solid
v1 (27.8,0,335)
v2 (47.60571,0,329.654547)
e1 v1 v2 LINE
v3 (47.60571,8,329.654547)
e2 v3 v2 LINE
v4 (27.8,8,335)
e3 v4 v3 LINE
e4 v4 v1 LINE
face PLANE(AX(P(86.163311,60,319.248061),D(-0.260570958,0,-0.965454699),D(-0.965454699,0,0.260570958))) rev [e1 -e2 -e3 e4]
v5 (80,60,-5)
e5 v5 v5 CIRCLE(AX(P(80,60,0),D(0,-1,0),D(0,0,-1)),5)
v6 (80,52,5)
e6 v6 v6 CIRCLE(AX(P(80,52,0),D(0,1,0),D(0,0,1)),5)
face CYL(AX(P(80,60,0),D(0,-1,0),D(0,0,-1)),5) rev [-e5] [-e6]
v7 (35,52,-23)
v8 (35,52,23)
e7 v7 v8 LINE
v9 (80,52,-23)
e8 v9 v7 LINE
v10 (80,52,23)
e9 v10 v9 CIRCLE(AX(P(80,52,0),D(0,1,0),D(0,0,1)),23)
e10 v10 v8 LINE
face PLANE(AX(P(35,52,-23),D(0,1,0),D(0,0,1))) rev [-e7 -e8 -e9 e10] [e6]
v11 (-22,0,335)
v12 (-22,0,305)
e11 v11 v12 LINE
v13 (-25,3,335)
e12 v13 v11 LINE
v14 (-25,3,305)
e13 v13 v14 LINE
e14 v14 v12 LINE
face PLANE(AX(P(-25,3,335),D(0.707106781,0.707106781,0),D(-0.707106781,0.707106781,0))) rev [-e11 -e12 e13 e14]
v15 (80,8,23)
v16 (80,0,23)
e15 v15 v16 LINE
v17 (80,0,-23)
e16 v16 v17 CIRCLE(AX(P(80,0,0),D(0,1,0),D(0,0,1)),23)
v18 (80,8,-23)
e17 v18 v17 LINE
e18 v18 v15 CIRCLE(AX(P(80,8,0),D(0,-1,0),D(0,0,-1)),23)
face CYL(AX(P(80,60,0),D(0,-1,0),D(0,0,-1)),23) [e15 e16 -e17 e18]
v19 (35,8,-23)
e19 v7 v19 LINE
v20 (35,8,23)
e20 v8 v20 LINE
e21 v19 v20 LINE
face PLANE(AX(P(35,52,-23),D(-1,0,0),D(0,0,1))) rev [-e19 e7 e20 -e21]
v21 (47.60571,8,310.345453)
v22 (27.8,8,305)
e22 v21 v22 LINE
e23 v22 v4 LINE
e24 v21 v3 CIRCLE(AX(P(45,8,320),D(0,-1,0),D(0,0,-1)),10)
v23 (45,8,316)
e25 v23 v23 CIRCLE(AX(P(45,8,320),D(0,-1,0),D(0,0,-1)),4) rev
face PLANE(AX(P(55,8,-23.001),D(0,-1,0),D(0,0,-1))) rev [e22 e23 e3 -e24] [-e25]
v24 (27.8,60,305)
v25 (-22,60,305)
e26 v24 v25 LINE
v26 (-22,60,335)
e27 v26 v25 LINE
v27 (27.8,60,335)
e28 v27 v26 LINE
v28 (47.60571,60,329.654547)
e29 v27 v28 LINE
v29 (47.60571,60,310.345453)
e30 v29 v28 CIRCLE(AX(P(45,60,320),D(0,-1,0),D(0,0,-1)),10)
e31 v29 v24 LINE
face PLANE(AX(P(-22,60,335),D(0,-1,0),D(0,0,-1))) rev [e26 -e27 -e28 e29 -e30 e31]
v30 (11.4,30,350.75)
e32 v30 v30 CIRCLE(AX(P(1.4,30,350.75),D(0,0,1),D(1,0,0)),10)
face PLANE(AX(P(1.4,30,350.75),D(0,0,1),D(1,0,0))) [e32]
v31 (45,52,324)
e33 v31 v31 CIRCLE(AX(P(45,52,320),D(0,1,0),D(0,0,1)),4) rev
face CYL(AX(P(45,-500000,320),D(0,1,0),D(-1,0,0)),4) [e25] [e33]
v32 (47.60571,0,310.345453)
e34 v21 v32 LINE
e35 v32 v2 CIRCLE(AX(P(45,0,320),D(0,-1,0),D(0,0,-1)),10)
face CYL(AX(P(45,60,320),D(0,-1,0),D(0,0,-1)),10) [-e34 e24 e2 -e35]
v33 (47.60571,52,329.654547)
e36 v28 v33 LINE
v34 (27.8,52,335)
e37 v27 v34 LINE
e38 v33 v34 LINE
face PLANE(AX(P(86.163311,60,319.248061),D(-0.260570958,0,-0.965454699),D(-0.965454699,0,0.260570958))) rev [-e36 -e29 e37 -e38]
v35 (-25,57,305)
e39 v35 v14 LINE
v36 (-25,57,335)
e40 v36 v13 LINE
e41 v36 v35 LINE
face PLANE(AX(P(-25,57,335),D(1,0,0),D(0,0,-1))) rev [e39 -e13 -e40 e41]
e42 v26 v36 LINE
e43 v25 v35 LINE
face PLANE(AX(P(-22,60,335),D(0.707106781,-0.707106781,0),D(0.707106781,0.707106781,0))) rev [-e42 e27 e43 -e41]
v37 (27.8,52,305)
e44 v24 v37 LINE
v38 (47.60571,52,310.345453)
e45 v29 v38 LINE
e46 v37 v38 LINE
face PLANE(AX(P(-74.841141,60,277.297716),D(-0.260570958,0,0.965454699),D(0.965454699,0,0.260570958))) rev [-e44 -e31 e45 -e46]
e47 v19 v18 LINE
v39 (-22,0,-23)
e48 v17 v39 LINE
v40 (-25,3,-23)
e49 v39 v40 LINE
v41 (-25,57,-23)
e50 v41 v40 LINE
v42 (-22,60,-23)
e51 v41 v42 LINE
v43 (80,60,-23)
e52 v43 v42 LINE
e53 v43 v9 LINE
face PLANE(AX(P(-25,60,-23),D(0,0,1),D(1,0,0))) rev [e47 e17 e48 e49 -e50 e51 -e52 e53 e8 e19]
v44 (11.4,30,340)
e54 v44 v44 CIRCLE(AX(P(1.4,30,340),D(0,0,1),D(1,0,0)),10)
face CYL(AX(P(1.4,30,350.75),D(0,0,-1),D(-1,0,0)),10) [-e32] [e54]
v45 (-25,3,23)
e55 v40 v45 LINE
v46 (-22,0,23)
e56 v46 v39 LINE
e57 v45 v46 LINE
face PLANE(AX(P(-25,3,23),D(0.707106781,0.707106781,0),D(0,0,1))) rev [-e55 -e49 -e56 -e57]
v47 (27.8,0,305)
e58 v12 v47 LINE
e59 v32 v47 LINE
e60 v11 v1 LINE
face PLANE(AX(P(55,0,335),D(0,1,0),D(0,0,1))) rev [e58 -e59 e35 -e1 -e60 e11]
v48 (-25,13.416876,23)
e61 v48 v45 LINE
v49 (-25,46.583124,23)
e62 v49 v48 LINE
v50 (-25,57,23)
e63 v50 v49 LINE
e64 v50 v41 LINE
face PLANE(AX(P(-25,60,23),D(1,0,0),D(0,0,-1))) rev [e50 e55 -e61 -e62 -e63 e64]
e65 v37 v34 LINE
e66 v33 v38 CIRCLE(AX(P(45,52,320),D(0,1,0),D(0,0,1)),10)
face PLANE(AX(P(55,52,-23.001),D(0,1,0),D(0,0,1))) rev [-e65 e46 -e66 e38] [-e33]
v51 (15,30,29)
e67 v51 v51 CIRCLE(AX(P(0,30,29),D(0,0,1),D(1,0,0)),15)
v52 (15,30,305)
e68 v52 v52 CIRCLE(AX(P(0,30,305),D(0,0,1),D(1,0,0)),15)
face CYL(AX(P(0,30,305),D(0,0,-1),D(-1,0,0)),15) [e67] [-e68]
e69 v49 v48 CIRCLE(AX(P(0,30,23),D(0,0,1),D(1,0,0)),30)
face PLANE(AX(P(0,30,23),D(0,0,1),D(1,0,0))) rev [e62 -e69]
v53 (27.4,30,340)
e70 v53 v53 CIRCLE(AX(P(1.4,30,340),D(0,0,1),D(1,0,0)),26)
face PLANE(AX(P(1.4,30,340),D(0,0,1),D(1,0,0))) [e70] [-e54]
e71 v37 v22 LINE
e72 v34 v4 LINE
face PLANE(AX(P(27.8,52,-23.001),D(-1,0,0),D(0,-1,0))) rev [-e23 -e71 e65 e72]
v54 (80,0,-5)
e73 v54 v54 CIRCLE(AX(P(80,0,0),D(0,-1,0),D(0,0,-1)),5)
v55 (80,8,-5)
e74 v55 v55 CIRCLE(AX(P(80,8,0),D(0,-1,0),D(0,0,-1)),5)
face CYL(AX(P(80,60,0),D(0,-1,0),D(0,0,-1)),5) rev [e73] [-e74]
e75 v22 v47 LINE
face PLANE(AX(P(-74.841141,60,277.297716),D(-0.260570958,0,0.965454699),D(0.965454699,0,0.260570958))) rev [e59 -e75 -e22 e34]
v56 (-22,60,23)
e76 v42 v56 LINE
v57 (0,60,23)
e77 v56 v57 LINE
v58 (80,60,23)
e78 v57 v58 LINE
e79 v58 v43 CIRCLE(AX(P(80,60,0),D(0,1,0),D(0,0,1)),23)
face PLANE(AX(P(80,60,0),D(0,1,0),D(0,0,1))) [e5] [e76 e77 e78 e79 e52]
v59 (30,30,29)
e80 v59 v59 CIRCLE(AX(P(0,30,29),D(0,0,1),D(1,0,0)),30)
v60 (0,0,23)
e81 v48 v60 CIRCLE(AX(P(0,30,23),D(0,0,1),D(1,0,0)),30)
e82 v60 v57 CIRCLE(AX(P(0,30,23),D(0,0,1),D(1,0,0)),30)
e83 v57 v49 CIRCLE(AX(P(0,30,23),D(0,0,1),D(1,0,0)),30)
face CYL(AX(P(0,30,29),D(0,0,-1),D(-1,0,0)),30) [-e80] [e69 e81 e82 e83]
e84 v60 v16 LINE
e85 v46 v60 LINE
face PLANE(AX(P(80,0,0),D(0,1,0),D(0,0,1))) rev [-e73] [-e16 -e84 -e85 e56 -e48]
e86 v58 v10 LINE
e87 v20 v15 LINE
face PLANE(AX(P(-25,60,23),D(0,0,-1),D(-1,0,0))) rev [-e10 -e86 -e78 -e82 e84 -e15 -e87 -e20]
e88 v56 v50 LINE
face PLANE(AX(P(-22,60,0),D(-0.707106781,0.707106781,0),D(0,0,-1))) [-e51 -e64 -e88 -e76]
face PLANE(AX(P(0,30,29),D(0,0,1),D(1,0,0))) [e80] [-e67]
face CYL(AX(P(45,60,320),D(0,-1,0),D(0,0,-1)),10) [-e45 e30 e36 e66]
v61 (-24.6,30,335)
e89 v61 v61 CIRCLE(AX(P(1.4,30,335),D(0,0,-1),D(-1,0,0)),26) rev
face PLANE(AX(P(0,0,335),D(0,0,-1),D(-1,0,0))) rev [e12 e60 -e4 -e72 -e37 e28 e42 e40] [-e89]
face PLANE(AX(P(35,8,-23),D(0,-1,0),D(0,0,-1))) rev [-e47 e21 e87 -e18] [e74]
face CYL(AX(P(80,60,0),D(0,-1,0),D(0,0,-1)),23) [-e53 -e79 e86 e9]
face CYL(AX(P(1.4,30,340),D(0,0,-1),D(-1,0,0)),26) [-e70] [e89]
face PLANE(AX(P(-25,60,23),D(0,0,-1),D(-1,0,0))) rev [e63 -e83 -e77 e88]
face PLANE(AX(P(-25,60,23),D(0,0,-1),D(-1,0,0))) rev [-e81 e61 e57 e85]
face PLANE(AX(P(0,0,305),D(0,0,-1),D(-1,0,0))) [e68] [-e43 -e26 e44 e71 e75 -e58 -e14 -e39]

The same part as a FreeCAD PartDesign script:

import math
import FreeCAD as App
import Part
import Sketcher

V = App.Vector


def edges_at(feature, points):
    """Names of the edges that pass closest to the given points."""
    edges = feature.Shape.Edges
    near = lambda p: min(range(len(edges)), key=lambda i: edges[i].distToShape(Part.Vertex(*p))[0])
    return sorted({f"Edge{near(p) + 1}" for p in points})

doc = App.newDocument("Part")
body = doc.addObject("PartDesign::Body", "Body")

sketch1 = body.newObject("Sketcher::SketchObject", "Sketch")
sketch1.AttachmentSupport = (doc.getObject("XZ_Plane"), [""])
sketch1.MapMode = "FlatFace"
sketch1.addGeometry(Part.LineSegment(V(-25, -23, 0), V(-25, 23, 0)), False)
sketch1.addGeometry(Part.LineSegment(V(-25, 23, 0), V(80, 23, 0)), False)
sketch1.addGeometry(Part.ArcOfCircle(Part.Circle(V(80, 0, 0), V(0, 0, 1), 23), math.radians(-90), math.radians(90)), False)
sketch1.addGeometry(Part.LineSegment(V(80, -23, 0), V(-25, -23, 0)), False)
sketch1.addConstraint(Sketcher.Constraint("Coincident", 0, 2, 1, 1))
sketch1.addConstraint(Sketcher.Constraint("Tangent", 1, 2, 2, 2))
sketch1.addConstraint(Sketcher.Constraint("Tangent", 2, 1, 3, 1))
sketch1.addConstraint(Sketcher.Constraint("Coincident", 3, 2, 0, 1))
sketch1.addConstraint(Sketcher.Constraint("Vertical", 0))
sketch1.addConstraint(Sketcher.Constraint("Horizontal", 1))
sketch1.addConstraint(Sketcher.Constraint("Horizontal", 3))
sketch1.addConstraint(Sketcher.Constraint("PointOnObject", 2, 3, -1))
sketch1.addConstraint(Sketcher.Constraint("Radius", 2, 23.0))
sketch1.addConstraint(Sketcher.Constraint("DistanceX", 1, 1, 1, 2, 105.0))
sketch1.addConstraint(Sketcher.Constraint("DistanceX", -1, 1, 2, 3, 80.0))
pad1 = body.newObject("PartDesign::Pad", "Pad")
pad1.Profile = sketch1
pad1.Length = 60
pad1.Reversed = True

sketch2 = body.newObject("Sketcher::SketchObject", "Sketch001")
sketch2.AttachmentSupport = (doc.getObject("XY_Plane"), [""])
sketch2.MapMode = "FlatFace"
sketch2.AttachmentOffset = App.Placement(V(0, 0, 23), App.Rotation())
sketch2.addGeometry(Part.LineSegment(V(35, 52, 0), V(35, 8, 0)), False)
sketch2.addGeometry(Part.LineSegment(V(35, 8, 0), V(103, 8, 0)), False)
sketch2.addGeometry(Part.LineSegment(V(103, 8, 0), V(103, 52, 0)), False)
sketch2.addGeometry(Part.LineSegment(V(103, 52, 0), V(35, 52, 0)), False)
sketch2.addConstraint(Sketcher.Constraint("Coincident", 0, 2, 1, 1))
sketch2.addConstraint(Sketcher.Constraint("Coincident", 1, 2, 2, 1))
sketch2.addConstraint(Sketcher.Constraint("Coincident", 2, 2, 3, 1))
sketch2.addConstraint(Sketcher.Constraint("Coincident", 3, 2, 0, 1))
sketch2.addConstraint(Sketcher.Constraint("Vertical", 0))
sketch2.addConstraint(Sketcher.Constraint("Horizontal", 1))
sketch2.addConstraint(Sketcher.Constraint("Vertical", 2))
sketch2.addConstraint(Sketcher.Constraint("Horizontal", 3))
sketch2.addConstraint(Sketcher.Constraint("DistanceX", 1, 1, 1, 2, 68.0))
sketch2.addConstraint(Sketcher.Constraint("DistanceY", 0, 2, 0, 1, 44.0))
sketch2.addConstraint(Sketcher.Constraint("DistanceX", -1, 1, 0, 2, 35.0))
sketch2.addConstraint(Sketcher.Constraint("DistanceY", -1, 1, 0, 2, 8.0))
pocket1 = body.newObject("PartDesign::Pocket", "Pocket")
pocket1.Profile = sketch2
pocket1.Type = "ThroughAll"
doc.recompute()

chamfer = body.newObject("PartDesign::Chamfer", "Chamfer")
chamfer.Base = (pocket1, edges_at(pocket1, [(-25, 60, 0), (-25, 0, 0)]))
chamfer.Size = 3

sketch3 = body.newObject("Sketcher::SketchObject", "Sketch002")
sketch3.AttachmentSupport = (doc.getObject("XY_Plane"), [""])
sketch3.MapMode = "FlatFace"
sketch3.AttachmentOffset = App.Placement(V(0, 0, 23), App.Rotation())
sketch3.addGeometry(Part.Circle(V(0, 30, 0), V(0, 0, 1), 30), False)
sketch3.addConstraint(Sketcher.Constraint("PointOnObject", 0, 3, -2))
sketch3.addConstraint(Sketcher.Constraint("Diameter", 0, 60.0))
sketch3.addConstraint(Sketcher.Constraint("DistanceY", -1, 1, 0, 3, 30.0))
pad2 = body.newObject("PartDesign::Pad", "Pad001")
pad2.Profile = sketch3
pad2.Length = 6

sketch4 = body.newObject("Sketcher::SketchObject", "Sketch003")
sketch4.AttachmentSupport = (doc.getObject("XY_Plane"), [""])
sketch4.MapMode = "FlatFace"
sketch4.AttachmentOffset = App.Placement(V(0, 0, 29), App.Rotation())
sketch4.addGeometry(Part.Circle(V(0, 30, 0), V(0, 0, 1), 15), False)
sketch4.addConstraint(Sketcher.Constraint("PointOnObject", 0, 3, -2))
sketch4.addConstraint(Sketcher.Constraint("Diameter", 0, 30.0))
sketch4.addConstraint(Sketcher.Constraint("DistanceY", -1, 1, 0, 3, 30.0))
pad3 = body.newObject("PartDesign::Pad", "Pad002")
pad3.Profile = sketch4
pad3.Length = 276

sketch5 = body.newObject("Sketcher::SketchObject", "Sketch004")
sketch5.AttachmentSupport = (doc.getObject("XY_Plane"), [""])
sketch5.MapMode = "FlatFace"
sketch5.AttachmentOffset = App.Placement(V(0, 0, 305), App.Rotation())
sketch5.addGeometry(Part.LineSegment(V(55, 60, 0), V(-22, 60, 0)), False)
sketch5.addGeometry(Part.LineSegment(V(-22, 60, 0), V(-25, 57, 0)), False)
sketch5.addGeometry(Part.LineSegment(V(-25, 57, 0), V(-25, 3, 0)), False)
sketch5.addGeometry(Part.LineSegment(V(-25, 3, 0), V(-22, 0, 0)), False)
sketch5.addGeometry(Part.LineSegment(V(-22, 0, 0), V(55, 0, 0)), False)
sketch5.addGeometry(Part.LineSegment(V(55, 0, 0), V(55, 60, 0)), False)
sketch5.addConstraint(Sketcher.Constraint("Coincident", 0, 2, 1, 1))
sketch5.addConstraint(Sketcher.Constraint("Coincident", 1, 2, 2, 1))
sketch5.addConstraint(Sketcher.Constraint("Coincident", 2, 2, 3, 1))
sketch5.addConstraint(Sketcher.Constraint("Coincident", 3, 2, 4, 1))
sketch5.addConstraint(Sketcher.Constraint("Coincident", 4, 2, 5, 1))
sketch5.addConstraint(Sketcher.Constraint("Coincident", 5, 2, 0, 1))
sketch5.addConstraint(Sketcher.Constraint("Horizontal", 0))
sketch5.addConstraint(Sketcher.Constraint("Vertical", 2))
sketch5.addConstraint(Sketcher.Constraint("Horizontal", 4))
sketch5.addConstraint(Sketcher.Constraint("Vertical", 5))
sketch5.addConstraint(Sketcher.Constraint("PointOnObject", 3, 2, -1))
sketch5.addConstraint(Sketcher.Constraint("Perpendicular", 1, 3))
sketch5.addConstraint(Sketcher.Constraint("Vertical", 0, 2, 3, 2))
sketch5.addConstraint(Sketcher.Constraint("Equal", 1, 3))
sketch5.addConstraint(Sketcher.Constraint("DistanceX", 0, 2, 0, 1, 77.0))
sketch5.addConstraint(Sketcher.Constraint("DistanceY", 2, 2, 2, 1, 54.0))
sketch5.addConstraint(Sketcher.Constraint("DistanceY", 5, 1, 5, 2, 60.0))
sketch5.addConstraint(Sketcher.Constraint("DistanceX", 0, 2, -1, 1, 22.0))
pad4 = body.newObject("PartDesign::Pad", "Pad003")
pad4.Profile = sketch5
pad4.Length = 30

sketch6 = body.newObject("Sketcher::SketchObject", "Sketch005")
sketch6.AttachmentSupport = (doc.getObject("XY_Plane"), [""])
sketch6.MapMode = "FlatFace"
sketch6.AttachmentOffset = App.Placement(V(0, 0, 335), App.Rotation())
sketch6.addGeometry(Part.LineSegment(V(28, 52, 0), V(28, 8, 0)), False)
sketch6.addGeometry(Part.LineSegment(V(28, 8, 0), V(55, 8, 0)), False)
sketch6.addGeometry(Part.LineSegment(V(55, 8, 0), V(55, 52, 0)), False)
sketch6.addGeometry(Part.LineSegment(V(55, 52, 0), V(28, 52, 0)), False)
sketch6.addConstraint(Sketcher.Constraint("Coincident", 0, 2, 1, 1))
sketch6.addConstraint(Sketcher.Constraint("Coincident", 1, 2, 2, 1))
sketch6.addConstraint(Sketcher.Constraint("Coincident", 2, 2, 3, 1))
sketch6.addConstraint(Sketcher.Constraint("Coincident", 3, 2, 0, 1))
sketch6.addConstraint(Sketcher.Constraint("Vertical", 0))
sketch6.addConstraint(Sketcher.Constraint("Horizontal", 1))
sketch6.addConstraint(Sketcher.Constraint("Vertical", 2))
sketch6.addConstraint(Sketcher.Constraint("Horizontal", 3))
sketch6.addConstraint(Sketcher.Constraint("DistanceY", 0, 2, 0, 1, 44.0))
sketch6.addConstraint(Sketcher.Constraint("DistanceX", 1, 1, 1, 2, 27.2))
sketch6.addConstraint(Sketcher.Constraint("DistanceY", -1, 1, 0, 2, 8.0))
sketch6.addConstraint(Sketcher.Constraint("DistanceX", -1, 1, 1, 2, 55.0))
pocket2 = body.newObject("PartDesign::Pocket", "Pocket001")
pocket2.Profile = sketch6
pocket2.Type = "UpToFirst"

sketch7 = body.newObject("Sketcher::SketchObject", "Sketch006")
sketch7.AttachmentSupport = (doc.getObject("XZ_Plane"), [""])
sketch7.MapMode = "FlatFace"
sketch7.addGeometry(Part.LineSegment(V(55, 335, 0), V(28, 335, 0)), False)
sketch7.addGeometry(Part.LineSegment(V(28, 335, 0), V(48, 330, 0)), False)
sketch7.addGeometry(Part.ArcOfCircle(Part.Circle(V(45, 320, 0), V(0, 0, 1), 10), math.radians(0), math.radians(75)), False)
sketch7.addGeometry(Part.LineSegment(V(55, 320, 0), V(55, 335, 0)), False)
sketch7.addGeometry(Part.LineSegment(V(55, 305, 0), V(55, 320, 0)), False)
sketch7.addGeometry(Part.ArcOfCircle(Part.Circle(V(45, 320, 0), V(0, 0, 1), 10), math.radians(-75), math.radians(0)), False)
sketch7.addGeometry(Part.LineSegment(V(48, 310, 0), V(28, 305, 0)), False)
sketch7.addGeometry(Part.LineSegment(V(28, 305, 0), V(55, 305, 0)), False)
sketch7.addConstraint(Sketcher.Constraint("Coincident", 0, 2, 1, 1))
sketch7.addConstraint(Sketcher.Constraint("Tangent", 1, 2, 2, 2))
sketch7.addConstraint(Sketcher.Constraint("Tangent", 2, 1, 3, 1))
sketch7.addConstraint(Sketcher.Constraint("Coincident", 3, 2, 0, 1))
sketch7.addConstraint(Sketcher.Constraint("Tangent", 4, 2, 5, 2))
sketch7.addConstraint(Sketcher.Constraint("Tangent", 5, 1, 6, 1))
sketch7.addConstraint(Sketcher.Constraint("Coincident", 6, 2, 7, 1))
sketch7.addConstraint(Sketcher.Constraint("Coincident", 7, 2, 4, 1))
sketch7.addConstraint(Sketcher.Constraint("Horizontal", 0))
sketch7.addConstraint(Sketcher.Constraint("Vertical", 3))
sketch7.addConstraint(Sketcher.Constraint("Vertical", 4))
sketch7.addConstraint(Sketcher.Constraint("Horizontal", 7))
sketch7.addConstraint(Sketcher.Constraint("Coincident", 5, 3, 2, 3))
sketch7.addConstraint(Sketcher.Constraint("Equal", 2, 5))
sketch7.addConstraint(Sketcher.Constraint("Vertical", 1, 2, 5, 1))
sketch7.addConstraint(Sketcher.Constraint("Vertical", 0, 2, 6, 2))
sketch7.addConstraint(Sketcher.Constraint("Radius", 2, 10.0))
sketch7.addConstraint(Sketcher.Constraint("DistanceY", 3, 1, 3, 2, 15.0))
sketch7.addConstraint(Sketcher.Constraint("DistanceX", 0, 2, 0, 1, 27.2))
sketch7.addConstraint(Sketcher.Constraint("DistanceX", -1, 1, 2, 3, 45.0))
sketch7.addConstraint(Sketcher.Constraint("DistanceY", -1, 1, 2, 3, 320.0))
pocket3 = body.newObject("PartDesign::Pocket", "Pocket002")
pocket3.Profile = sketch7
pocket3.Length = 60

sketch8 = body.newObject("Sketcher::SketchObject", "Sketch007")
sketch8.AttachmentSupport = (doc.getObject("XZ_Plane"), [""])
sketch8.MapMode = "FlatFace"
sketch8.AttachmentOffset = App.Placement(V(0, 0, -52), App.Rotation())
sketch8.addGeometry(Part.Circle(V(45, 320, 0), V(0, 0, 1), 4), False)
sketch8.addConstraint(Sketcher.Constraint("Diameter", 0, 8.0))
sketch8.addConstraint(Sketcher.Constraint("DistanceX", -1, 1, 0, 3, 45.0))
sketch8.addConstraint(Sketcher.Constraint("DistanceY", -1, 1, 0, 3, 320.0))
pad5 = body.newObject("PartDesign::Pad", "Pad004")
pad5.Profile = sketch8
pad5.Type = "UpToFirst"

sketch9 = body.newObject("Sketcher::SketchObject", "Sketch008")
sketch9.AttachmentSupport = (doc.getObject("XY_Plane"), [""])
sketch9.MapMode = "FlatFace"
sketch9.AttachmentOffset = App.Placement(V(0, 0, 335), App.Rotation())
sketch9.addGeometry(Part.Circle(V(1, 30, 0), V(0, 0, 1), 26), False)
sketch9.addConstraint(Sketcher.Constraint("Diameter", 0, 52.0))
sketch9.addConstraint(Sketcher.Constraint("DistanceY", -1, 1, 0, 3, 30.0))
sketch9.addConstraint(Sketcher.Constraint("DistanceX", -1, 1, 0, 3, 1.4))
pad6 = body.newObject("PartDesign::Pad", "Pad005")
pad6.Profile = sketch9
pad6.Length = 5

sketch10 = body.newObject("Sketcher::SketchObject", "Sketch009")
sketch10.AttachmentSupport = (doc.getObject("XY_Plane"), [""])
sketch10.MapMode = "FlatFace"
sketch10.AttachmentOffset = App.Placement(V(0, 0, 340), App.Rotation())
sketch10.addGeometry(Part.Circle(V(1, 30, 0), V(0, 0, 1), 10), False)
sketch10.addConstraint(Sketcher.Constraint("Diameter", 0, 20.0))
sketch10.addConstraint(Sketcher.Constraint("DistanceY", -1, 1, 0, 3, 30.0))
sketch10.addConstraint(Sketcher.Constraint("DistanceX", -1, 1, 0, 3, 1.4))
pad7 = body.newObject("PartDesign::Pad", "Pad006")
pad7.Profile = sketch10
pad7.Length = 10.75

sketch11 = body.newObject("Sketcher::SketchObject", "Sketch010")
sketch11.AttachmentSupport = (doc.getObject("XZ_Plane"), [""])
sketch11.MapMode = "FlatFace"
sketch11.addGeometry(Part.Circle(V(80, 0, 0), V(0, 0, 1), 5), False)
sketch11.addConstraint(Sketcher.Constraint("PointOnObject", 0, 3, -1))
sketch11.addConstraint(Sketcher.Constraint("Diameter", 0, 10.0))
sketch11.addConstraint(Sketcher.Constraint("DistanceX", -1, 1, 0, 3, 80.0))
pocket4 = body.newObject("PartDesign::Pocket", "Pocket003")
pocket4.Profile = sketch11
pocket4.Type = "ThroughAll"

doc.recompute()
